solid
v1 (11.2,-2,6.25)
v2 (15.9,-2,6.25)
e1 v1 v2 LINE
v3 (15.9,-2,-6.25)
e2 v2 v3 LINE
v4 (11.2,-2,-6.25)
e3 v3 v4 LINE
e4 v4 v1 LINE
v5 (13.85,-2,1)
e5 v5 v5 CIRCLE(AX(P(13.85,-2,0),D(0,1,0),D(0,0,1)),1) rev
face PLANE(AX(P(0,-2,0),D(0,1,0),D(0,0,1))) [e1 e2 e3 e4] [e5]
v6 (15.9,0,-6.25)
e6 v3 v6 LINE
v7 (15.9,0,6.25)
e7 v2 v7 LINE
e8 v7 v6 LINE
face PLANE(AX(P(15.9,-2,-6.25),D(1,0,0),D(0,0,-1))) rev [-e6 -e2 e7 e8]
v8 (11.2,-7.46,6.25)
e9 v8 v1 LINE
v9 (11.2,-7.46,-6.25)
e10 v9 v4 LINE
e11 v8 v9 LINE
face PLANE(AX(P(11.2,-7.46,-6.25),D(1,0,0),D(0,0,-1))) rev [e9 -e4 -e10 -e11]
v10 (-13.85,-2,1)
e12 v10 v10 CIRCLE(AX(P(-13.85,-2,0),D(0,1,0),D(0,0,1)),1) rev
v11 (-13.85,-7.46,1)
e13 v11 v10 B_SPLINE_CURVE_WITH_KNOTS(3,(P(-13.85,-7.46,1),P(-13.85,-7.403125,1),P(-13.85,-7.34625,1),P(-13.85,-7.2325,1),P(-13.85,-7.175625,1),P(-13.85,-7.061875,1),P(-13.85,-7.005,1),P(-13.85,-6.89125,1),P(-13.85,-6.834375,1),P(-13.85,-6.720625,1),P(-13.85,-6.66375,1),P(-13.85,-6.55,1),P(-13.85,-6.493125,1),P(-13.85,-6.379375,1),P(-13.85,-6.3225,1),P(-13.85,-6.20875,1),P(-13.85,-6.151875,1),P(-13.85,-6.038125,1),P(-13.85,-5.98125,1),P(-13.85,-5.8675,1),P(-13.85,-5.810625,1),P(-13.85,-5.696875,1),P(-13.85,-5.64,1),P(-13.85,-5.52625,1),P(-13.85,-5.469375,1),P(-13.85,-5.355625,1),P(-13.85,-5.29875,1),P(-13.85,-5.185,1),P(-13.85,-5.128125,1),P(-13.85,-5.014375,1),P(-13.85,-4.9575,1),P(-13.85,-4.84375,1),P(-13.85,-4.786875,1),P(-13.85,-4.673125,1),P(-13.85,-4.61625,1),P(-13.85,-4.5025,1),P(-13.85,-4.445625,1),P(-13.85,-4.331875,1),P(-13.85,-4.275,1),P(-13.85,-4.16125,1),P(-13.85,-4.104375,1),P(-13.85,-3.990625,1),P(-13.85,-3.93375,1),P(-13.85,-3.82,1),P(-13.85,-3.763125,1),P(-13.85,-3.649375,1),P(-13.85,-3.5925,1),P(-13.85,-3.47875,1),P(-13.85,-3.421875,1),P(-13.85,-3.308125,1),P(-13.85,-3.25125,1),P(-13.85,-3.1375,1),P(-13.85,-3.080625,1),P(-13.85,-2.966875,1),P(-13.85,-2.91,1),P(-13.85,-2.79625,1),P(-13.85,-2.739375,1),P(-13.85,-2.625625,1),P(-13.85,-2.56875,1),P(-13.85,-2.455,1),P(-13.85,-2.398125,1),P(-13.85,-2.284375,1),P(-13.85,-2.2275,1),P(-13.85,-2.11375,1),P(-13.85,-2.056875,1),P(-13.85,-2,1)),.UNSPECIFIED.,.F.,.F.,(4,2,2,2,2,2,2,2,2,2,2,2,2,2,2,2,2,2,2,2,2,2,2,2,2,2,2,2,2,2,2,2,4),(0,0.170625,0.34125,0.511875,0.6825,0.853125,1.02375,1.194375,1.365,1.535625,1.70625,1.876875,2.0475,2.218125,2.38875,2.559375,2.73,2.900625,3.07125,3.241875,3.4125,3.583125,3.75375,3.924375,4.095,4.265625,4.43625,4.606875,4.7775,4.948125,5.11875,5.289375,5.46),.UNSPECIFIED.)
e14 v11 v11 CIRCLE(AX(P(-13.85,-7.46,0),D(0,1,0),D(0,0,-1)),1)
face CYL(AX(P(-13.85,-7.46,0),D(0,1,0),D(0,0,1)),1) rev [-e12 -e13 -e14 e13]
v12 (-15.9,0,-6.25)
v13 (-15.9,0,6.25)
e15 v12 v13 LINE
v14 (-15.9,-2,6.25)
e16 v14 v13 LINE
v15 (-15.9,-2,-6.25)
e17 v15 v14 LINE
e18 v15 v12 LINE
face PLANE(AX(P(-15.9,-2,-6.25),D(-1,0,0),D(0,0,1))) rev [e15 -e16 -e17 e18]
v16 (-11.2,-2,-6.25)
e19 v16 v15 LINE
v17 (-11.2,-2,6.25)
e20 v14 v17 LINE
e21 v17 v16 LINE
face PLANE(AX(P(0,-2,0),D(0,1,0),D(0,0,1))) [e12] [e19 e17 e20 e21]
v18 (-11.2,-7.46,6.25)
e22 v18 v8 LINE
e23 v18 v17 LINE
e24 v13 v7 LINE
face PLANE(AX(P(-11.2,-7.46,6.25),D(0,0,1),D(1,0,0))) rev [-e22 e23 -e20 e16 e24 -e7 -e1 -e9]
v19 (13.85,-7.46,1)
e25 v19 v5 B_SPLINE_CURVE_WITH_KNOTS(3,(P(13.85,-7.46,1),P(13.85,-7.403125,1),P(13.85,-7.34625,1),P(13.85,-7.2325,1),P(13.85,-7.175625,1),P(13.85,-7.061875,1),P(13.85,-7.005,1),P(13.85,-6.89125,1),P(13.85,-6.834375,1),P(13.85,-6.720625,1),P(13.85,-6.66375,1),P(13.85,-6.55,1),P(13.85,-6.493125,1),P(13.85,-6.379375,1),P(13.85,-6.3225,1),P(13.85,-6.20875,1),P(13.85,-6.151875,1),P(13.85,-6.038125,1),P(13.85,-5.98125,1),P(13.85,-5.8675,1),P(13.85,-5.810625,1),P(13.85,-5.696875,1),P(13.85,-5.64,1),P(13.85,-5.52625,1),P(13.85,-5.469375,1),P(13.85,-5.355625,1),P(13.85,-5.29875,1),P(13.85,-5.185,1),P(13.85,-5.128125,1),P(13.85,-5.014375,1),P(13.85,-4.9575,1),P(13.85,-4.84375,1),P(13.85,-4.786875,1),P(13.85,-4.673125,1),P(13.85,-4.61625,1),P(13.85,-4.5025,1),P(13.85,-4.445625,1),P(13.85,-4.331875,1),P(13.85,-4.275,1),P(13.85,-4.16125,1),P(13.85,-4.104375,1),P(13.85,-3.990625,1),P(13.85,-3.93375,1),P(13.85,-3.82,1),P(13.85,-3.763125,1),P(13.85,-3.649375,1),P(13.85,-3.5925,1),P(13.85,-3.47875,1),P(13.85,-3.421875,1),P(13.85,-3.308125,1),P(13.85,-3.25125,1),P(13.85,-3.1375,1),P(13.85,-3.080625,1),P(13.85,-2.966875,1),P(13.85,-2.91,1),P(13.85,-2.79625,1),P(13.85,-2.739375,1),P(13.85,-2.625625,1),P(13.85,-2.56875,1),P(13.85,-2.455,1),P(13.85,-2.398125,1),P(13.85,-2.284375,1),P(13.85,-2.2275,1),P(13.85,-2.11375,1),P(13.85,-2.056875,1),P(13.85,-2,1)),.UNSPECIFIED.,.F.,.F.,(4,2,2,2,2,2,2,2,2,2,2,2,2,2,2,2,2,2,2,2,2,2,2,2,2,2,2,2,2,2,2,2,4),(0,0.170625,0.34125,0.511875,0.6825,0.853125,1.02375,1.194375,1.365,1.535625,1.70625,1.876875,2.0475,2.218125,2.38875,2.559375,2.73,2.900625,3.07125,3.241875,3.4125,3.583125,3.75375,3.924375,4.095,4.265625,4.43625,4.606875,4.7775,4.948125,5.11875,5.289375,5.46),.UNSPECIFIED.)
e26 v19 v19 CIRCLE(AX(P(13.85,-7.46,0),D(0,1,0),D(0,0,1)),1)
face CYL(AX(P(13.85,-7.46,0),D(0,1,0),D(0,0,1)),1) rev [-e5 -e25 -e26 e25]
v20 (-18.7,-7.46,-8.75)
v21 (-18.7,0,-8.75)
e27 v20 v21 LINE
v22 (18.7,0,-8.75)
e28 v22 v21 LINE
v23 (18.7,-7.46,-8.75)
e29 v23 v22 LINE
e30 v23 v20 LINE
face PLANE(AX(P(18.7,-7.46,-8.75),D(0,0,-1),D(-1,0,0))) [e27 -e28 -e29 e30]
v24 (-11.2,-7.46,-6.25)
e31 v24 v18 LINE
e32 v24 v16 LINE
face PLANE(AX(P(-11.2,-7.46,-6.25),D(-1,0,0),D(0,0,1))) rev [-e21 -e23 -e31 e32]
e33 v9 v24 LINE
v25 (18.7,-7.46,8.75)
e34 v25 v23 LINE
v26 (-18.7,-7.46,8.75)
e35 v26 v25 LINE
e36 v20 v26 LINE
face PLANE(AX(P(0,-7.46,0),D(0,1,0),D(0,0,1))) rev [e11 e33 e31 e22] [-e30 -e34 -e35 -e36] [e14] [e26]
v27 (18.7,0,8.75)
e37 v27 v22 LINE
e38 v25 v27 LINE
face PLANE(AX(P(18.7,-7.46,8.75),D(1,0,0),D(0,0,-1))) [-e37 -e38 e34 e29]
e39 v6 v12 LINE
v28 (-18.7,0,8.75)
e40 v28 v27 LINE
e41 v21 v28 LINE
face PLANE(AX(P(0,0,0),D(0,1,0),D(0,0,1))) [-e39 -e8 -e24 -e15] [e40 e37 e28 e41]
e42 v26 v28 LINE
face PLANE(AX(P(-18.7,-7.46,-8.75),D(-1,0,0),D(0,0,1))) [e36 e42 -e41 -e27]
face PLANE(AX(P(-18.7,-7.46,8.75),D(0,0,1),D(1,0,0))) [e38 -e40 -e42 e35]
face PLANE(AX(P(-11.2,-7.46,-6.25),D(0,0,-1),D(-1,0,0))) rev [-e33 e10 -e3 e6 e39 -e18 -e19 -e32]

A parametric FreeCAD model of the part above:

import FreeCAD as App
import Part
import Sketcher

V = App.Vector

doc = App.newDocument("Part")
body = doc.addObject("PartDesign::Body", "Body")

sketch1 = body.newObject("Sketcher::SketchObject", "Sketch")
sketch1.AttachmentSupport = (doc.getObject("XZ_Plane"), [""])
sketch1.MapMode = "FlatFace"
sketch1.addGeometry([
    Part.LineSegment(V(-18.7, -8.75, 0), V(-18.7, 8.75, 0)),
    Part.LineSegment(V(-18.7, 8.75, 0), V(18.7, 8.75, 0)),
    Part.LineSegment(V(18.7, 8.75, 0), V(18.7, -8.75, 0)),
    Part.LineSegment(V(18.7, -8.75, 0), V(-18.7, -8.75, 0)),
    Part.Circle(V(-13.85, 0, 0), V(0, 0, 1), 1),
    Part.LineSegment(V(11.2, 6.25, 0), V(-11.2, 6.25, 0)),
    Part.LineSegment(V(-11.2, 6.25, 0), V(-11.2, -6.25, 0)),
    Part.LineSegment(V(-11.2, -6.25, 0), V(11.2, -6.25, 0)),
    Part.LineSegment(V(11.2, -6.25, 0), V(11.2, 6.25, 0)),
    Part.Circle(V(13.85, 0, 0), V(0, 0, 1), 1),
], False)
sketch1.addConstraint([
    Sketcher.Constraint("Coincident", 0, 2, 1, 1),
    Sketcher.Constraint("Coincident", 1, 2, 2, 1),
    Sketcher.Constraint("Coincident", 2, 2, 3, 1),
    Sketcher.Constraint("Coincident", 3, 2, 0, 1),
    Sketcher.Constraint("Coincident", 5, 2, 6, 1),
    Sketcher.Constraint("Coincident", 6, 2, 7, 1),
    Sketcher.Constraint("Coincident", 7, 2, 8, 1),
    Sketcher.Constraint("Coincident", 8, 2, 5, 1),
    Sketcher.Constraint("Vertical", 0),
    Sketcher.Constraint("Horizontal", 1),
    Sketcher.Constraint("Vertical", 2),
    Sketcher.Constraint("Horizontal", 3),
    Sketcher.Constraint("Horizontal", 5),
    Sketcher.Constraint("Vertical", 6),
    Sketcher.Constraint("Horizontal", 7),
    Sketcher.Constraint("Vertical", 8),
    Sketcher.Constraint("Equal", 4, 9),
    Sketcher.Constraint("Symmetric", 4, 3, 9, 3, -1, 1),
    Sketcher.Constraint("Symmetric", 0, 2, 2, 2, -1, 1),
    Sketcher.Constraint("Symmetric", 5, 2, 7, 2, -1, 1),
    Sketcher.Constraint("PointOnObject", 4, 3, -1),
    Sketcher.Constraint("Diameter", 4, 2.0),
    Sketcher.Constraint("DistanceX", 1, 1, 1, 2, 37.4),
    Sketcher.Constraint("DistanceX", 5, 2, 5, 1, 22.4),
    Sketcher.Constraint("DistanceY", 0, 1, 0, 2, 17.5),
    Sketcher.Constraint("DistanceY", 6, 2, 6, 1, 12.5),
    Sketcher.Constraint("DistanceX", 4, 3, 9, 3, 27.7),
])
pad1 = body.newObject("PartDesign::Pad", "Pad")
pad1.Profile = sketch1
pad1.Length = 7.46

sketch2 = body.newObject("Sketcher::SketchObject", "Sketch001")
sketch2.AttachmentSupport = (doc.getObject("XZ_Plane"), [""])
sketch2.MapMode = "FlatFace"
sketch2.addGeometry([
    Part.LineSegment(V(-15.9, -6.25, 0), V(-15.9, 6.25, 0)),
    Part.LineSegment(V(-15.9, 6.25, 0), V(15.9, 6.25, 0)),
    Part.LineSegment(V(15.9, 6.25, 0), V(15.9, -6.25, 0)),
    Part.LineSegment(V(15.9, -6.25, 0), V(-15.9, -6.25, 0)),
], False)
sketch2.addConstraint([
    Sketcher.Constraint("Coincident", 0, 2, 1, 1),
    Sketcher.Constraint("Coincident", 1, 2, 2, 1),
    Sketcher.Constraint("Coincident", 2, 2, 3, 1),
    Sketcher.Constraint("Coincident", 3, 2, 0, 1),
    Sketcher.Constraint("Vertical", 0),
    Sketcher.Constraint("Horizontal", 1),
    Sketcher.Constraint("Vertical", 2),
    Sketcher.Constraint("Horizontal", 3),
    Sketcher.Constraint("Symmetric", 0, 2, 2, 2, -1, 1),
    Sketcher.Constraint("DistanceX", 1, 1, 1, 2, 31.8),
    Sketcher.Constraint("DistanceY", 0, 1, 0, 2, 12.5),
])
pocket1 = body.newObject("PartDesign::Pocket", "Pocket")
pocket1.Profile = sketch2
pocket1.Length = 2
pocket1.Reversed = True

doc.recompute()
